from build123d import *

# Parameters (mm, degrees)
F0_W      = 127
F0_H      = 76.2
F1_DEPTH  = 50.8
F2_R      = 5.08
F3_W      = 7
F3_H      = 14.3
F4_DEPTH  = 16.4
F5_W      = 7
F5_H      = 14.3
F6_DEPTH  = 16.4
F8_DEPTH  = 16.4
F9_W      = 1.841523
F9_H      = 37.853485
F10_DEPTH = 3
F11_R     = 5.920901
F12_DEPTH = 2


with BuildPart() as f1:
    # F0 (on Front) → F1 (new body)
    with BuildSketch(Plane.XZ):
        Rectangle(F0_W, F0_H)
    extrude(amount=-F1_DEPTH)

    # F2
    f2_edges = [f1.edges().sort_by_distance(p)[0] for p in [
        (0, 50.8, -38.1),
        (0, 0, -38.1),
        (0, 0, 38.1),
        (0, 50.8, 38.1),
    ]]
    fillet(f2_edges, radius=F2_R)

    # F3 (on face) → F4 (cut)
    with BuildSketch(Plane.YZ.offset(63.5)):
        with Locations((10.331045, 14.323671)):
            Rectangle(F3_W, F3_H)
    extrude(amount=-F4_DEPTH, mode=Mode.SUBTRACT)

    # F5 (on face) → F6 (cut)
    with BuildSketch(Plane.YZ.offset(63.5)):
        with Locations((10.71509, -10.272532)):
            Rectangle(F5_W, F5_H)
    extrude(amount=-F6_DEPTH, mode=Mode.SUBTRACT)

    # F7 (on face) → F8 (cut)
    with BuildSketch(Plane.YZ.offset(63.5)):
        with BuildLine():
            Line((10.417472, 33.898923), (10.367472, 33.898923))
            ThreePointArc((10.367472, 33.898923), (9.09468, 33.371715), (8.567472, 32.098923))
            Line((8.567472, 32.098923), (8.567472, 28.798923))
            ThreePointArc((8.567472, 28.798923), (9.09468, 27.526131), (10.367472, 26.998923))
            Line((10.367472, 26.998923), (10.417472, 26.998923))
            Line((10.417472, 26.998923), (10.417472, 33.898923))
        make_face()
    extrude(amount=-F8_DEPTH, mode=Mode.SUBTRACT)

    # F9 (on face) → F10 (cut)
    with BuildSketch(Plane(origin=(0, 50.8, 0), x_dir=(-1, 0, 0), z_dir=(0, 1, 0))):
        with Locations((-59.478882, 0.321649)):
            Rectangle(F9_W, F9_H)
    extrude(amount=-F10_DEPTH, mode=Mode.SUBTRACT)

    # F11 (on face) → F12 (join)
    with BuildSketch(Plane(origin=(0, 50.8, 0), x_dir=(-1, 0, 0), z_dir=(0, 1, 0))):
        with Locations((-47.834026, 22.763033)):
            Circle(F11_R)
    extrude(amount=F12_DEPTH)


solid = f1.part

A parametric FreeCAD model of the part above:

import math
import FreeCAD as App
import Part
import Sketcher


def edges_at(feature, points):
    """Names of the edges that pass closest to the given points."""
    edges = feature.Shape.Edges
    near = lambda p: min(range(len(edges)), key=lambda i: edges[i].distToShape(Part.Vertex(*p))[0])
    return sorted({f"Edge{near(p) + 1}" for p in points})

doc = App.newDocument("Part")
params = doc.addObject("Spreadsheet::Sheet", "Params")
for row, (alias, value) in enumerate([
    ("sketch1_width", "127 mm"),
    ("sketch1_height", "76.2 mm"),
    ("pad1_length", "50.8 mm"),
    ("fillet_radius", "5.08 mm"),
    ("sketch2_width", "7 mm"),
    ("sketch2_height", "14.3 mm"),
    ("pocket1_length", "16.4 mm"),
    ("sketch3_width", "7 mm"),
    ("sketch3_height", "14.3 mm"),
    ("pocket2_length", "16.4 mm"),
    ("sketch4_radius", "1.800001 mm"),
    ("sketch4_height", "3.3 mm"),
    ("sketch4_width", "0.05 mm"),
    ("pocket3_length", "16.4 mm"),
    ("pocket4_length", "3 mm"),
    ("pad2_length", "2 mm"),
], start=1):
    params.set(f"A{row}", alias)
    params.set(f"B{row}", "=" + value)
    params.setAlias(f"B{row}", alias)

body = doc.addObject("PartDesign::Body", "Body")

# Sketch on XZ plane
sketch1 = body.newObject("Sketcher::SketchObject", "Sketch")
sketch1.AttachmentSupport = (doc.getObject("XZ_Plane"), [""])
sketch1.MapMode = "FlatFace"
sketch1.addGeometry([
    Part.LineSegment(App.Vector(-64, 38, 0), App.Vector(-64, -38, 0)),
    Part.LineSegment(App.Vector(-64, -38, 0), App.Vector(64, -38, 0)),
    Part.LineSegment(App.Vector(64, -38, 0), App.Vector(64, 38, 0)),
    Part.LineSegment(App.Vector(64, 38, 0), App.Vector(-64, 38, 0)),
], False)
sketch1.addConstraint([
    Sketcher.Constraint("Coincident", 0, 2, 1, 1),
    Sketcher.Constraint("Coincident", 1, 2, 2, 1),
    Sketcher.Constraint("Coincident", 2, 2, 3, 1),
    Sketcher.Constraint("Coincident", 3, 2, 0, 1),
    Sketcher.Constraint("Vertical", 0),
    Sketcher.Constraint("Horizontal", 1),
    Sketcher.Constraint("Vertical", 2),
    Sketcher.Constraint("Horizontal", 3),
    Sketcher.Constraint("Symmetric", 0, 2, 2, 2, -1, 1),
    Sketcher.Constraint("DistanceX", 1, 1, 1, 2, 127.0),
    Sketcher.Constraint("DistanceY", 0, 2, 0, 1, 76.2),
])
sketch1.setExpression("Constraints[9]", "Params.sketch1_width")
sketch1.setExpression("Constraints[10]", "Params.sketch1_height")
pad1 = body.newObject("PartDesign::Pad", "Pad")
pad1.Profile = sketch1
pad1.setExpression("Length", "Params.pad1_length")
pad1.Reversed = True
doc.recompute()

fillet = body.newObject("PartDesign::Fillet", "Fillet")
fillet.Base = (pad1, edges_at(pad1, [
    (0, 50.8, -38.1),
    (0, 0, -38.1),
    (0, 0, 38.1),
    (0, 50.8, 38.1),
]))
fillet.setExpression("Radius", "Params.fillet_radius")

# Sketch on YZ plane
sketch2 = body.newObject("Sketcher::SketchObject", "Sketch001")
sketch2.AttachmentSupport = (doc.getObject("YZ_Plane"), [""])
sketch2.MapMode = "FlatFace"
sketch2.AttachmentOffset = App.Placement(App.Vector(0, 0, 63.5), App.Rotation())
sketch2.addGeometry([
    Part.LineSegment(App.Vector(7, 21, 0), App.Vector(7, 7, 0)),
    Part.LineSegment(App.Vector(7, 7, 0), App.Vector(14, 7, 0)),
    Part.LineSegment(App.Vector(14, 7, 0), App.Vector(14, 21, 0)),
    Part.LineSegment(App.Vector(14, 21, 0), App.Vector(7, 21, 0)),
], False)
sketch2.addConstraint([
    Sketcher.Constraint("Coincident", 0, 2, 1, 1),
    Sketcher.Constraint("Coincident", 1, 2, 2, 1),
    Sketcher.Constraint("Coincident", 2, 2, 3, 1),
    Sketcher.Constraint("Coincident", 3, 2, 0, 1),
    Sketcher.Constraint("Vertical", 0),
    Sketcher.Constraint("Horizontal", 1),
    Sketcher.Constraint("Vertical", 2),
    Sketcher.Constraint("Horizontal", 3),
    Sketcher.Constraint("DistanceX", 1, 1, 1, 2, 7.0),
    Sketcher.Constraint("DistanceY", 0, 2, 0, 1, 14.3),
    Sketcher.Constraint("DistanceY", -1, 1, 0, 2, 7.173671),
    Sketcher.Constraint("DistanceX", -1, 1, 0, 2, 6.831045),
])
sketch2.setExpression("Constraints[8]", "Params.sketch2_width")
sketch2.setExpression("Constraints[9]", "Params.sketch2_height")
pocket1 = body.newObject("PartDesign::Pocket", "Pocket")
pocket1.Profile = sketch2
pocket1.setExpression("Length", "Params.pocket1_length")

# Sketch on YZ plane
sketch3 = body.newObject("Sketcher::SketchObject", "Sketch002")
sketch3.AttachmentSupport = (doc.getObject("YZ_Plane"), [""])
sketch3.MapMode = "FlatFace"
sketch3.AttachmentOffset = App.Placement(App.Vector(0, 0, 63.5), App.Rotation())
sketch3.addGeometry([
    Part.LineSegment(App.Vector(7, -3, 0), App.Vector(7, -17, 0)),
    Part.LineSegment(App.Vector(7, -17, 0), App.Vector(14, -17, 0)),
    Part.LineSegment(App.Vector(14, -17, 0), App.Vector(14, -3, 0)),
    Part.LineSegment(App.Vector(14, -3, 0), App.Vector(7, -3, 0)),
], False)
sketch3.addConstraint([
    Sketcher.Constraint("Coincident", 0, 2, 1, 1),
    Sketcher.Constraint("Coincident", 1, 2, 2, 1),
    Sketcher.Constraint("Coincident", 2, 2, 3, 1),
    Sketcher.Constraint("Coincident", 3, 2, 0, 1),
    Sketcher.Constraint("Vertical", 0),
    Sketcher.Constraint("Horizontal", 1),
    Sketcher.Constraint("Vertical", 2),
    Sketcher.Constraint("Horizontal", 3),
    Sketcher.Constraint("DistanceX", 1, 1, 1, 2, 7.0),
    Sketcher.Constraint("DistanceY", 0, 2, 0, 1, 14.3),
    Sketcher.Constraint("DistanceX", -1, 1, 0, 2, 7.21509),
    Sketcher.Constraint("DistanceY", 0, 2, -1, 1, 17.422532),
])
sketch3.setExpression("Constraints[8]", "Params.sketch3_width")
sketch3.setExpression("Constraints[9]", "Params.sketch3_height")
pocket2 = body.newObject("PartDesign::Pocket", "Pocket001")
pocket2.Profile = sketch3
pocket2.setExpression("Length", "Params.pocket2_length")

# Sketch on YZ plane
sketch4 = body.newObject("Sketcher::SketchObject", "Sketch003")
sketch4.AttachmentSupport = (doc.getObject("YZ_Plane"), [""])
sketch4.MapMode = "FlatFace"
sketch4.AttachmentOffset = App.Placement(App.Vector(0, 0, 63.5), App.Rotation())
sketch4.addGeometry([
    Part.LineSegment(App.Vector(10.42, 33.9, 0), App.Vector(10.37, 33.9, 0)),  # 0
    Part.ArcOfCircle(Part.Circle(App.Vector(10.37, 32.1, 0), App.Vector(0, 0, 1), 1.8), math.radians(90), math.radians(180)),  # 1
    Part.LineSegment(App.Vector(8.57, 32.1, 0), App.Vector(8.57, 28.8, 0)),  # 2
    Part.ArcOfCircle(Part.Circle(App.Vector(10.37, 28.8, 0), App.Vector(0, 0, 1), 1.8), math.radians(-180), math.radians(-90)),  # 3
    Part.LineSegment(App.Vector(10.37, 27, 0), App.Vector(10.42, 27, 0)),  # 4
    Part.LineSegment(App.Vector(10.42, 27, 0), App.Vector(10.42, 33.9, 0)),  # 5
], False)
sketch4.addConstraint([
    Sketcher.Constraint("Tangent", 0, 2, 1, 1),
    Sketcher.Constraint("Tangent", 1, 2, 2, 1),
    Sketcher.Constraint("Tangent", 2, 2, 3, 1),
    Sketcher.Constraint("Tangent", 3, 2, 4, 1),
    Sketcher.Constraint("Coincident", 4, 2, 5, 1),
    Sketcher.Constraint("Coincident", 5, 2, 0, 1),
    Sketcher.Constraint("Horizontal", 0),
    Sketcher.Constraint("Vertical", 2),
    Sketcher.Constraint("Horizontal", 4),
    Sketcher.Constraint("Vertical", 5),
    Sketcher.Constraint("Equal", 1, 3),
    Sketcher.Constraint("Radius", 1, 1.800001),
    Sketcher.Constraint("DistanceY", 2, 2, 2, 1, 3.3),
    Sketcher.Constraint("DistanceX", 0, 2, 0, 1, 0.05),
    Sketcher.Constraint("DistanceX", -1, 1, 0, 2, 10.367472),
    Sketcher.Constraint("DistanceY", -1, 1, 1, 3, 32.098922),
])
sketch4.setExpression("Constraints[11]", "Params.sketch4_radius")
sketch4.setExpression("Constraints[12]", "Params.sketch4_height")
sketch4.setExpression("Constraints[13]", "Params.sketch4_width")
pocket3 = body.newObject("PartDesign::Pocket", "Pocket002")
pocket3.Profile = sketch4
pocket3.setExpression("Length", "Params.pocket3_length")

# Sketch on XZ plane
sketch5 = body.newObject("Sketcher::SketchObject", "Sketch004")
sketch5.AttachmentSupport = (doc.getObject("XZ_Plane"), [""])
sketch5.MapMode = "FlatFace"
sketch5.AttachmentOffset = App.Placement(App.Vector(0, 0, -50.8), App.Rotation())
sketch5.addGeometry([
    Part.LineSegment(App.Vector(60.4, 19.2, 0), App.Vector(60.4, -18.6, 0)),
    Part.LineSegment(App.Vector(60.4, -18.6, 0), App.Vector(58.6, -18.6, 0)),
    Part.LineSegment(App.Vector(58.6, -18.6, 0), App.Vector(58.6, 19.2, 0)),
    Part.LineSegment(App.Vector(58.6, 19.2, 0), App.Vector(60.4, 19.2, 0)),
], False)
sketch5.addConstraint([
    Sketcher.Constraint("Coincident", 0, 2, 1, 1),
    Sketcher.Constraint("Coincident", 1, 2, 2, 1),
    Sketcher.Constraint("Coincident", 2, 2, 3, 1),
    Sketcher.Constraint("Coincident", 3, 2, 0, 1),
    Sketcher.Constraint("Vertical", 0),
    Sketcher.Constraint("Horizontal", 1),
    Sketcher.Constraint("Vertical", 2),
    Sketcher.Constraint("Horizontal", 3),
    Sketcher.Constraint("DistanceX", 1, 2, 1, 1, 1.841523),
    Sketcher.Constraint("DistanceY", 0, 2, 0, 1, 37.853485),
    Sketcher.Constraint("DistanceX", -1, 1, 1, 2, 58.558121),
    Sketcher.Constraint("DistanceY", -1, 1, 2, 2, 19.248392),
])
pocket4 = body.newObject("PartDesign::Pocket", "Pocket003")
pocket4.Profile = sketch5
pocket4.setExpression("Length", "Params.pocket4_length")
pocket4.Reversed = True

# Sketch on XZ plane
sketch6 = body.newObject("Sketcher::SketchObject", "Sketch005")
sketch6.AttachmentSupport = (doc.getObject("XZ_Plane"), [""])
sketch6.MapMode = "FlatFace"
sketch6.AttachmentOffset = App.Placement(App.Vector(0, 0, -50.8), App.Rotation())
sketch6.addGeometry(Part.Circle(App.Vector(48, 23, 0), App.Vector(0, 0, 1), 6), False)
sketch6.addConstraint([
    Sketcher.Constraint("Diameter", 0, 11.841802),
    Sketcher.Constraint("DistanceX", -1, 1, 0, 3, 47.834026),
    Sketcher.Constraint("DistanceY", -1, 1, 0, 3, 22.763033),
])
pad2 = body.newObject("PartDesign::Pad", "Pad001")
pad2.Profile = sketch6
pad2.setExpression("Length", "Params.pad2_length")
pad2.Reversed = True

doc.recompute()
